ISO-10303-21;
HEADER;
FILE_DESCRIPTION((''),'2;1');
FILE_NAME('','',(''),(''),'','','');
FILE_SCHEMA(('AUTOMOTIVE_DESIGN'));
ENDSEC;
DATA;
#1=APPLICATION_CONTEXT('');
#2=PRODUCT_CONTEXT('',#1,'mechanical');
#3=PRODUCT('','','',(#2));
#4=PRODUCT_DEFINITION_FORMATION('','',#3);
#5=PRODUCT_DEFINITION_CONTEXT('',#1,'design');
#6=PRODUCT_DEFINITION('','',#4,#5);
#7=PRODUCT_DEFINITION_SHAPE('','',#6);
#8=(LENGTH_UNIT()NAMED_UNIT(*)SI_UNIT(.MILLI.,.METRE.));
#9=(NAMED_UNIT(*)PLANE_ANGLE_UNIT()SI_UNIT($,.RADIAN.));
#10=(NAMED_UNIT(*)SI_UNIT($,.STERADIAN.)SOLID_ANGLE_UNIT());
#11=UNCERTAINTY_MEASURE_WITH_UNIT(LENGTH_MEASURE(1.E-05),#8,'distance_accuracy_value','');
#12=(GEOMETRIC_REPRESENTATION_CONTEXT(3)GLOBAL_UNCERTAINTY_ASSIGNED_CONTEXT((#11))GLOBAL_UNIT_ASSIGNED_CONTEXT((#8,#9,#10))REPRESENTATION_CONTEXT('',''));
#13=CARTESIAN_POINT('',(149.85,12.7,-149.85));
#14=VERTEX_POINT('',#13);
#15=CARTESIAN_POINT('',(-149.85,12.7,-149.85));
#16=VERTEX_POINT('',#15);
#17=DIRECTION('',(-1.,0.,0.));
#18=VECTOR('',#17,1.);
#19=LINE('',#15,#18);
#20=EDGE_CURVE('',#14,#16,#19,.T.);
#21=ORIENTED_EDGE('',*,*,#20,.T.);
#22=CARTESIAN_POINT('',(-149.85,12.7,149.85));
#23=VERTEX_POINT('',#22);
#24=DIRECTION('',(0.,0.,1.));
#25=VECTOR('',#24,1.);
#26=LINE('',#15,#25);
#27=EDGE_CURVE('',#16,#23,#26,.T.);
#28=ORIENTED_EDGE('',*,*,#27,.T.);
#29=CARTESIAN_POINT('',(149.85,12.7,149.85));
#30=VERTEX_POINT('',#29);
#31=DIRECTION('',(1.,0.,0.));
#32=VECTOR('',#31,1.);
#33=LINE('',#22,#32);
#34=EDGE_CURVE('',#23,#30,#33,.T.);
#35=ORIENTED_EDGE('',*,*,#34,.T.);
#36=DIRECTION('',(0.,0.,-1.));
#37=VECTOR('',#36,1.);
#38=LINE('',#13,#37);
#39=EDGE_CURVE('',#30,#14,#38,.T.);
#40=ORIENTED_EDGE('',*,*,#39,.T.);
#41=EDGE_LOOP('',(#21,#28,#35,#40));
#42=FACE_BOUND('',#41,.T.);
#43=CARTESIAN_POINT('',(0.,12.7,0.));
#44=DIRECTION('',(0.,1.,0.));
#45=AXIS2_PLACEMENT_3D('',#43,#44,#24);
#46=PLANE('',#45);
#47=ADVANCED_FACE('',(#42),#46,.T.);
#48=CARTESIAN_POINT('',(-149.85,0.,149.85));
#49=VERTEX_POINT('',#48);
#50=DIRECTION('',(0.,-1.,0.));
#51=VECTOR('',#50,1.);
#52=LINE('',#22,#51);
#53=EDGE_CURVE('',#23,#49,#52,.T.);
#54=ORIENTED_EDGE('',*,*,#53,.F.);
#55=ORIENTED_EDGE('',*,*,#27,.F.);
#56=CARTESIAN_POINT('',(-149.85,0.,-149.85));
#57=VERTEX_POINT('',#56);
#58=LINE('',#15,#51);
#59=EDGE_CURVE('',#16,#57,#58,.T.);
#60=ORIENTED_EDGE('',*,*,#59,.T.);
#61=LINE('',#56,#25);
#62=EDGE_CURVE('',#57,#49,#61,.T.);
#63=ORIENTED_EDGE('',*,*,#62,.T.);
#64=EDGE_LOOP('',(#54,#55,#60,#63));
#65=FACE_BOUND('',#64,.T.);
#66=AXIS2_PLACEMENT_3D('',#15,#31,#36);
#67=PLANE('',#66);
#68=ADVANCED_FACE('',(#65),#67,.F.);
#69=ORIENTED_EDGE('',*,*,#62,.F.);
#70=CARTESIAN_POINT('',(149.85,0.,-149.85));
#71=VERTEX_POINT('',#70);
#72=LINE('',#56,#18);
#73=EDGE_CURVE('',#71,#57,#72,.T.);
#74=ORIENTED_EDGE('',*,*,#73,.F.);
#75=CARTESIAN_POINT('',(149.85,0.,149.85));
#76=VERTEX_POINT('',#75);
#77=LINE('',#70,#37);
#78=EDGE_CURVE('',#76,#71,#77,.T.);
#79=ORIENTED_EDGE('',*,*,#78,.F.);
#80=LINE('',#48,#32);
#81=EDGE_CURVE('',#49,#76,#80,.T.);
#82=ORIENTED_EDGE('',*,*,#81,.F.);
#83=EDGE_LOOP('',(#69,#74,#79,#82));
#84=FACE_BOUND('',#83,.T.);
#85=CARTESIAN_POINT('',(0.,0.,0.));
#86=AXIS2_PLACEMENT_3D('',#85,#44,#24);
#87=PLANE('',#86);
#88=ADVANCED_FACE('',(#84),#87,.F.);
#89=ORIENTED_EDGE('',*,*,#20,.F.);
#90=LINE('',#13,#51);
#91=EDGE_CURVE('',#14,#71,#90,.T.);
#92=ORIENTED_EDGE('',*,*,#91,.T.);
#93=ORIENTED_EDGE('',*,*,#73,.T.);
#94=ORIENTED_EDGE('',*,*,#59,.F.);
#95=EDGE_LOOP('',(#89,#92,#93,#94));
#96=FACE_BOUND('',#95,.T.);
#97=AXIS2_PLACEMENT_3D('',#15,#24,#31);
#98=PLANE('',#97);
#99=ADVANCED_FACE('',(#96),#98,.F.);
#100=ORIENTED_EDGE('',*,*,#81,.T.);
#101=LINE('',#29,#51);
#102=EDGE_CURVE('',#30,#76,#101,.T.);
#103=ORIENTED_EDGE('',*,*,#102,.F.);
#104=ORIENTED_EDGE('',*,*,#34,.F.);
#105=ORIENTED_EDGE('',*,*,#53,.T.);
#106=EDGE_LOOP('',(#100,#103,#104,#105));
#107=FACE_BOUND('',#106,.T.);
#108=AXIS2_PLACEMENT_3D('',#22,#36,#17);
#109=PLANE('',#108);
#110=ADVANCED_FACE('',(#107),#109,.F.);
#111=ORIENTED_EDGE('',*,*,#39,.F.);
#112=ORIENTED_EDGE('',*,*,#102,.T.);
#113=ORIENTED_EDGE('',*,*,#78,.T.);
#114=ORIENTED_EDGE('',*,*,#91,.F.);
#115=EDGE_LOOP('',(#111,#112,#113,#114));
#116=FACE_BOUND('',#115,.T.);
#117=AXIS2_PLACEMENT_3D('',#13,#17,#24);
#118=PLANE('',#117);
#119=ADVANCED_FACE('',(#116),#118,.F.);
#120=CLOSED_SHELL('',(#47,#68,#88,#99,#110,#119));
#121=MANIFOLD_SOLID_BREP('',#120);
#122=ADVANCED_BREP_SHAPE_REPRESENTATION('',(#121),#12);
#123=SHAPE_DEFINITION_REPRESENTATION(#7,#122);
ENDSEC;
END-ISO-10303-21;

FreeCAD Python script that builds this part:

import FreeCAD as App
import Part
import Sketcher
from FreeCAD import Vector


def add_polygon(sketch, points):
    """Adds a closed chain of lines whose ends are joined by coincident constraints."""
    first, n = sketch.GeometryCount, len(points)
    for a, b in zip(points, points[1:] + points[:1]):
        sketch.addGeometry(Part.LineSegment(App.Vector(*a, 0), App.Vector(*b, 0)), False)
    for i in range(n):
        sketch.addConstraint(Sketcher.Constraint("Coincident", first + i, 2, first + (i + 1) % n, 1))

doc = App.newDocument("Part")
params = doc.addObject("Spreadsheet::Sheet", "Params")
for row, (alias, value) in enumerate([
    ("sketch1_width", "299.7 mm"),
    ("pad1_length", "12.7 mm"),
], start=1):
    params.set(f"A{row}", alias)
    params.set(f"B{row}", "=" + value)
    params.setAlias(f"B{row}", alias)

body = doc.addObject("PartDesign::Body", "Body")

# Sketch on XZ plane
sketch1 = body.newObject("Sketcher::SketchObject", "Sketch")
sketch1.AttachmentSupport = (doc.getObject("XZ_Plane"), [""])
sketch1.MapMode = "FlatFace"
add_polygon(sketch1, [(-149.85, -149.85), (-149.85, 149.85), (149.85, 149.85), (149.85, -149.85)])  # lines 0-3
sketch1.addConstraint([
    Sketcher.Constraint("Vertical", 0),
    Sketcher.Constraint("Horizontal", 1),
    Sketcher.Constraint("Vertical", 2),
    Sketcher.Constraint("Horizontal", 3),
    Sketcher.Constraint("Symmetric", 0, 2, 2, 2, -1, 1),
    Sketcher.Constraint("Equal", 3, 0),
    Sketcher.Constraint("DistanceX", 1, 1, 1, 2, 299.7),
])
sketch1.setExpression("Constraints[10]", "Params.sketch1_width")
pad1 = body.newObject("PartDesign::Pad", "Pad")
pad1.Profile = sketch1
pad1.setExpression("Length", "Params.pad1_length")
pad1.Reversed = True

doc.recompute()
